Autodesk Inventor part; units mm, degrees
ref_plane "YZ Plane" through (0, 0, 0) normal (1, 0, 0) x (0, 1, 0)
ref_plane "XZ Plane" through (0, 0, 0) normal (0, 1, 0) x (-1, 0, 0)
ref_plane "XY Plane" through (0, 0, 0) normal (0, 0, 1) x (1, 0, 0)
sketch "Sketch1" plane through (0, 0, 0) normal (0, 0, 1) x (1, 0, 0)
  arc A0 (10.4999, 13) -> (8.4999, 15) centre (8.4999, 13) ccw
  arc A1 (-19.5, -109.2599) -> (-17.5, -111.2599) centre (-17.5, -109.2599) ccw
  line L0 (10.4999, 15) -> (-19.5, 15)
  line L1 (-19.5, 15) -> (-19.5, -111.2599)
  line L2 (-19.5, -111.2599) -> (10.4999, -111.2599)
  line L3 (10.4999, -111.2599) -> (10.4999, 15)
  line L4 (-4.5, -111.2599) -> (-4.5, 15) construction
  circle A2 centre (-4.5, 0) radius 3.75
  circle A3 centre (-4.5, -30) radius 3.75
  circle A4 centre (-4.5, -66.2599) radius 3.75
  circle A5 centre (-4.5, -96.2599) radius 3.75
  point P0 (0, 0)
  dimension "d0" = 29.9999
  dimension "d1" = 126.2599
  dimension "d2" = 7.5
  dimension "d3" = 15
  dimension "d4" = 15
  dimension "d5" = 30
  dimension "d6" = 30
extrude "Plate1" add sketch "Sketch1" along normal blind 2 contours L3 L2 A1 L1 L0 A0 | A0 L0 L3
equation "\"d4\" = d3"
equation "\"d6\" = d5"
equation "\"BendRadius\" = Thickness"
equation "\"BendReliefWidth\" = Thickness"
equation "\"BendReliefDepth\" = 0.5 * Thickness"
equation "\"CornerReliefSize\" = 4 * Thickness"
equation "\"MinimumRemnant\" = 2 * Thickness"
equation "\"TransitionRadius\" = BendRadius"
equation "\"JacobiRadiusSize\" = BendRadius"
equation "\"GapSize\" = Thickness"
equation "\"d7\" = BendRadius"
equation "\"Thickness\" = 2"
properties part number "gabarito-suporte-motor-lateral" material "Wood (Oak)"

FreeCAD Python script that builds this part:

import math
import FreeCAD as App
import Part
import Sketcher
from FreeCAD import Vector
Q = App.Units.Quantity

doc = App.newDocument("Part")
body = doc.addObject("PartDesign::Body", "Body")

sketch1 = body.newObject("Sketcher::SketchObject", "Sketch")
sketch1.AttachmentSupport = (doc.getObject("XY_Plane"), [""])
sketch1.MapMode = "FlatFace"
sketch1.addGeometry([
    Part.LineSegment(Vector(10.5, -111.3, 0), Vector(10.5, 15, 0)),
    Part.LineSegment(Vector(10.5, 15, 0), Vector(-19.5, 15, 0)),
    Part.LineSegment(Vector(-19.5, 15, 0), Vector(-19.5, -109.3, 0)),
    Part.ArcOfCircle(Part.Circle(Vector(-17.5, -109.3, 0), Vector(0, 0, 1), 2), math.radians(180), math.radians(270)),
    Part.LineSegment(Vector(-17.5, -111.3, 0), Vector(10.5, -111.3, 0)),
    Part.Circle(Vector(-4.5, -96.3, 0), Vector(0, 0, 1), 3.8),
    Part.Circle(Vector(-4.5, -66.3, 0), Vector(0, 0, 1), 3.8),
    Part.Circle(Vector(-4.5, -30, 0), Vector(0, 0, 1), 3.8),
    Part.Circle(Vector(-4.5, 0, 0), Vector(0, 0, 1), 3.8),
], False)
sketch1.addConstraint([
    Sketcher.Constraint("Coincident", 0, 2, 1, 1),
    Sketcher.Constraint("Coincident", 1, 2, 2, 1),
    Sketcher.Constraint("Tangent", 2, 2, 3, 1),
    Sketcher.Constraint("Tangent", 3, 2, 4, 1),
    Sketcher.Constraint("Coincident", 4, 2, 0, 1),
    Sketcher.Constraint("Vertical", 0),
    Sketcher.Constraint("Horizontal", 1),
    Sketcher.Constraint("Vertical", 2),
    Sketcher.Constraint("Horizontal", 4),
    Sketcher.Constraint("Equal", 5, 6),
    Sketcher.Constraint("Equal", 6, 7),
    Sketcher.Constraint("Equal", 7, 8),
    Sketcher.Constraint("PointOnObject", 8, 3, -1),
    Sketcher.Constraint("Vertical", 5, 3, 6, 3),
    Sketcher.Constraint("Vertical", 6, 3, 7, 3),
    Sketcher.Constraint("Vertical", 7, 3, 8, 3),
    Sketcher.Constraint("Diameter", 5, Q("7.5 mm")),
    Sketcher.Constraint("DistanceX", 1, 2, 1, 1, Q("30 mm")),
    Sketcher.Constraint("DistanceY", 7, 3, -1, 1, Q("30 mm")),
    Sketcher.Constraint("DistanceY", -1, 1, 0, 2, Q("15 mm")),
    Sketcher.Constraint("Radius", 3, Q("2 mm")),
    Sketcher.Constraint("DistanceY", 5, 3, 6, 3, Q("30 mm")),
    Sketcher.Constraint("DistanceX", 8, 3, 0, 2, Q("15 mm")),
    Sketcher.Constraint("DistanceY", 3, 2, 5, 3, Q("15 mm")),
    Sketcher.Constraint("DistanceY", 0, 1, 0, 2, Q("126.26 mm")),
    Sketcher.Constraint("DistanceX", 3, 3, -1, 1, Q("17.5 mm")),
])
pad1 = body.newObject("PartDesign::Pad", "Pad")
pad1.Profile = sketch1
pad1.Length = 2

doc.recompute()
